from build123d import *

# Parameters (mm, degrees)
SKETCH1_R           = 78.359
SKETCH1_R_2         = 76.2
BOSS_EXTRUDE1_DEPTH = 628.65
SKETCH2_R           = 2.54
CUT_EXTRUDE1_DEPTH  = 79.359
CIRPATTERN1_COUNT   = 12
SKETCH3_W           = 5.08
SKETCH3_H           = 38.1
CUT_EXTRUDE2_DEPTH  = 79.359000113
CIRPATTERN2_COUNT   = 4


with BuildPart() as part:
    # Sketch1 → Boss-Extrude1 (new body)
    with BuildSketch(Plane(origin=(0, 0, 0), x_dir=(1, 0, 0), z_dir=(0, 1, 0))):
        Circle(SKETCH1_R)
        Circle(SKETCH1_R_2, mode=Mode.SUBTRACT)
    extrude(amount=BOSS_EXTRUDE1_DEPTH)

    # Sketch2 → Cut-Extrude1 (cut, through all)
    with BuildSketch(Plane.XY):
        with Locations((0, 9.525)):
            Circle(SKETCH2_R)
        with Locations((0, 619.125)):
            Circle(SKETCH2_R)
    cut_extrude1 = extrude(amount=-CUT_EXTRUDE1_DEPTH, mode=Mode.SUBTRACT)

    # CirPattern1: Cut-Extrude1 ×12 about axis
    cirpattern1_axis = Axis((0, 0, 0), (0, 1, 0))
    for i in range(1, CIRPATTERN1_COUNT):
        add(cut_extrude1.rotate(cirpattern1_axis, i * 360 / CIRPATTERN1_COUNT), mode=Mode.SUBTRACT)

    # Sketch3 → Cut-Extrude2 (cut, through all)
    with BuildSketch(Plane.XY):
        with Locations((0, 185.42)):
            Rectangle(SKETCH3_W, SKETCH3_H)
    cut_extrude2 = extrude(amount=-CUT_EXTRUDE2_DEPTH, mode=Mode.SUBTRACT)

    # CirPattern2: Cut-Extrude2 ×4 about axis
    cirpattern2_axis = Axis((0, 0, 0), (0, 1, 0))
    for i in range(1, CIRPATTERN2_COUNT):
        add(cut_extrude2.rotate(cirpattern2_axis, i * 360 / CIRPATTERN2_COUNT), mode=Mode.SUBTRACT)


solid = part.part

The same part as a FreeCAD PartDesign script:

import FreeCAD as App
import Part
import Sketcher

V = App.Vector
Q = App.Units.Quantity

doc = App.newDocument("Part")
body = doc.addObject("PartDesign::Body", "Body")

sketch1 = body.newObject("Sketcher::SketchObject", "Sketch")
sketch1.AttachmentSupport = (doc.getObject("XZ_Plane"), [""])
sketch1.MapMode = "FlatFace"
sketch1.addGeometry([
    Part.Circle(V(0, 0, 0), V(0, 0, 1), 78),
    Part.Circle(V(0, 0, 0), V(0, 0, 1), 76),
], False)
sketch1.addConstraint([
    Sketcher.Constraint("Coincident", 0, 3, -1, 1),
    Sketcher.Constraint("Coincident", 1, 3, -1, 1),
    Sketcher.Constraint("Diameter", 1, Q("6 in")),
    Sketcher.Constraint("Diameter", 0, Q("6.17 in")),
])
pad1 = body.newObject("PartDesign::Pad", "Pad")
pad1.Profile = sketch1
pad1.Length = Q("24.75 in")
pad1.Reversed = True

sketch2 = body.newObject("Sketcher::SketchObject", "Sketch001")
sketch2.AttachmentSupport = (doc.getObject("XY_Plane"), [""])
sketch2.MapMode = "FlatFace"
sketch2.addGeometry([
    Part.Circle(V(0, 9.5, 0), V(0, 0, 1), 2.5),
    Part.Circle(V(0, 619.1, 0), V(0, 0, 1), 2.5),
], False)
sketch2.addConstraint([
    Sketcher.Constraint("Equal", 0, 1),
    Sketcher.Constraint("PointOnObject", 0, 3, -2),
    Sketcher.Constraint("PointOnObject", 1, 3, -2),
    Sketcher.Constraint("Diameter", 0, Q("0.2 in")),
    Sketcher.Constraint("DistanceY", 0, 3, 1, 3, Q("24 in")),
    Sketcher.Constraint("DistanceY", -1, 1, 0, 3, Q("0.375 in")),
])
pocket1 = body.newObject("PartDesign::Pocket", "Pocket")
pocket1.Profile = sketch2
pocket1.Type = "ThroughAll"
doc.recompute()

polarpattern = body.newObject("PartDesign::PolarPattern", "PolarPattern")
polarpattern.Originals = [pocket1]
polarpattern.Axis = (doc.getObject("Y_Axis"), [""])
polarpattern.Angle = 360
polarpattern.Occurrences = 12
body.Tip = polarpattern

sketch3 = body.newObject("Sketcher::SketchObject", "Sketch002")
sketch3.AttachmentSupport = (doc.getObject("XY_Plane"), [""])
sketch3.MapMode = "FlatFace"
sketch3.addGeometry([
    Part.LineSegment(V(-3, 204, 0), V(-3, 166, 0)),
    Part.LineSegment(V(-3, 166, 0), V(3, 166, 0)),
    Part.LineSegment(V(3, 166, 0), V(3, 204, 0)),
    Part.LineSegment(V(3, 204, 0), V(-3, 204, 0)),
], False)
sketch3.addConstraint([
    Sketcher.Constraint("Coincident", 0, 2, 1, 1),
    Sketcher.Constraint("Coincident", 1, 2, 2, 1),
    Sketcher.Constraint("Coincident", 2, 2, 3, 1),
    Sketcher.Constraint("Coincident", 3, 2, 0, 1),
    Sketcher.Constraint("Vertical", 0),
    Sketcher.Constraint("Horizontal", 1),
    Sketcher.Constraint("Vertical", 2),
    Sketcher.Constraint("Horizontal", 3),
    Sketcher.Constraint("DistanceX", 1, 1, 1, 2, Q("0.2 in")),
    Sketcher.Constraint("DistanceY", 0, 2, 0, 1, Q("1.5 in")),
    Sketcher.Constraint("DistanceX", 0, 2, -1, 1, Q("0.1 in")),
    Sketcher.Constraint("DistanceY", -1, 1, 0, 2, Q("6.55 in")),
])
pocket2 = body.newObject("PartDesign::Pocket", "Pocket001")
pocket2.Profile = sketch3
pocket2.Type = "ThroughAll"
doc.recompute()

polarpattern2 = body.newObject("PartDesign::PolarPattern", "PolarPattern001")
polarpattern2.Originals = [pocket2]
polarpattern2.Axis = (doc.getObject("Y_Axis"), [""])
polarpattern2.Angle = 360
polarpattern2.Occurrences = 4
body.Tip = polarpattern2

doc.recompute()
